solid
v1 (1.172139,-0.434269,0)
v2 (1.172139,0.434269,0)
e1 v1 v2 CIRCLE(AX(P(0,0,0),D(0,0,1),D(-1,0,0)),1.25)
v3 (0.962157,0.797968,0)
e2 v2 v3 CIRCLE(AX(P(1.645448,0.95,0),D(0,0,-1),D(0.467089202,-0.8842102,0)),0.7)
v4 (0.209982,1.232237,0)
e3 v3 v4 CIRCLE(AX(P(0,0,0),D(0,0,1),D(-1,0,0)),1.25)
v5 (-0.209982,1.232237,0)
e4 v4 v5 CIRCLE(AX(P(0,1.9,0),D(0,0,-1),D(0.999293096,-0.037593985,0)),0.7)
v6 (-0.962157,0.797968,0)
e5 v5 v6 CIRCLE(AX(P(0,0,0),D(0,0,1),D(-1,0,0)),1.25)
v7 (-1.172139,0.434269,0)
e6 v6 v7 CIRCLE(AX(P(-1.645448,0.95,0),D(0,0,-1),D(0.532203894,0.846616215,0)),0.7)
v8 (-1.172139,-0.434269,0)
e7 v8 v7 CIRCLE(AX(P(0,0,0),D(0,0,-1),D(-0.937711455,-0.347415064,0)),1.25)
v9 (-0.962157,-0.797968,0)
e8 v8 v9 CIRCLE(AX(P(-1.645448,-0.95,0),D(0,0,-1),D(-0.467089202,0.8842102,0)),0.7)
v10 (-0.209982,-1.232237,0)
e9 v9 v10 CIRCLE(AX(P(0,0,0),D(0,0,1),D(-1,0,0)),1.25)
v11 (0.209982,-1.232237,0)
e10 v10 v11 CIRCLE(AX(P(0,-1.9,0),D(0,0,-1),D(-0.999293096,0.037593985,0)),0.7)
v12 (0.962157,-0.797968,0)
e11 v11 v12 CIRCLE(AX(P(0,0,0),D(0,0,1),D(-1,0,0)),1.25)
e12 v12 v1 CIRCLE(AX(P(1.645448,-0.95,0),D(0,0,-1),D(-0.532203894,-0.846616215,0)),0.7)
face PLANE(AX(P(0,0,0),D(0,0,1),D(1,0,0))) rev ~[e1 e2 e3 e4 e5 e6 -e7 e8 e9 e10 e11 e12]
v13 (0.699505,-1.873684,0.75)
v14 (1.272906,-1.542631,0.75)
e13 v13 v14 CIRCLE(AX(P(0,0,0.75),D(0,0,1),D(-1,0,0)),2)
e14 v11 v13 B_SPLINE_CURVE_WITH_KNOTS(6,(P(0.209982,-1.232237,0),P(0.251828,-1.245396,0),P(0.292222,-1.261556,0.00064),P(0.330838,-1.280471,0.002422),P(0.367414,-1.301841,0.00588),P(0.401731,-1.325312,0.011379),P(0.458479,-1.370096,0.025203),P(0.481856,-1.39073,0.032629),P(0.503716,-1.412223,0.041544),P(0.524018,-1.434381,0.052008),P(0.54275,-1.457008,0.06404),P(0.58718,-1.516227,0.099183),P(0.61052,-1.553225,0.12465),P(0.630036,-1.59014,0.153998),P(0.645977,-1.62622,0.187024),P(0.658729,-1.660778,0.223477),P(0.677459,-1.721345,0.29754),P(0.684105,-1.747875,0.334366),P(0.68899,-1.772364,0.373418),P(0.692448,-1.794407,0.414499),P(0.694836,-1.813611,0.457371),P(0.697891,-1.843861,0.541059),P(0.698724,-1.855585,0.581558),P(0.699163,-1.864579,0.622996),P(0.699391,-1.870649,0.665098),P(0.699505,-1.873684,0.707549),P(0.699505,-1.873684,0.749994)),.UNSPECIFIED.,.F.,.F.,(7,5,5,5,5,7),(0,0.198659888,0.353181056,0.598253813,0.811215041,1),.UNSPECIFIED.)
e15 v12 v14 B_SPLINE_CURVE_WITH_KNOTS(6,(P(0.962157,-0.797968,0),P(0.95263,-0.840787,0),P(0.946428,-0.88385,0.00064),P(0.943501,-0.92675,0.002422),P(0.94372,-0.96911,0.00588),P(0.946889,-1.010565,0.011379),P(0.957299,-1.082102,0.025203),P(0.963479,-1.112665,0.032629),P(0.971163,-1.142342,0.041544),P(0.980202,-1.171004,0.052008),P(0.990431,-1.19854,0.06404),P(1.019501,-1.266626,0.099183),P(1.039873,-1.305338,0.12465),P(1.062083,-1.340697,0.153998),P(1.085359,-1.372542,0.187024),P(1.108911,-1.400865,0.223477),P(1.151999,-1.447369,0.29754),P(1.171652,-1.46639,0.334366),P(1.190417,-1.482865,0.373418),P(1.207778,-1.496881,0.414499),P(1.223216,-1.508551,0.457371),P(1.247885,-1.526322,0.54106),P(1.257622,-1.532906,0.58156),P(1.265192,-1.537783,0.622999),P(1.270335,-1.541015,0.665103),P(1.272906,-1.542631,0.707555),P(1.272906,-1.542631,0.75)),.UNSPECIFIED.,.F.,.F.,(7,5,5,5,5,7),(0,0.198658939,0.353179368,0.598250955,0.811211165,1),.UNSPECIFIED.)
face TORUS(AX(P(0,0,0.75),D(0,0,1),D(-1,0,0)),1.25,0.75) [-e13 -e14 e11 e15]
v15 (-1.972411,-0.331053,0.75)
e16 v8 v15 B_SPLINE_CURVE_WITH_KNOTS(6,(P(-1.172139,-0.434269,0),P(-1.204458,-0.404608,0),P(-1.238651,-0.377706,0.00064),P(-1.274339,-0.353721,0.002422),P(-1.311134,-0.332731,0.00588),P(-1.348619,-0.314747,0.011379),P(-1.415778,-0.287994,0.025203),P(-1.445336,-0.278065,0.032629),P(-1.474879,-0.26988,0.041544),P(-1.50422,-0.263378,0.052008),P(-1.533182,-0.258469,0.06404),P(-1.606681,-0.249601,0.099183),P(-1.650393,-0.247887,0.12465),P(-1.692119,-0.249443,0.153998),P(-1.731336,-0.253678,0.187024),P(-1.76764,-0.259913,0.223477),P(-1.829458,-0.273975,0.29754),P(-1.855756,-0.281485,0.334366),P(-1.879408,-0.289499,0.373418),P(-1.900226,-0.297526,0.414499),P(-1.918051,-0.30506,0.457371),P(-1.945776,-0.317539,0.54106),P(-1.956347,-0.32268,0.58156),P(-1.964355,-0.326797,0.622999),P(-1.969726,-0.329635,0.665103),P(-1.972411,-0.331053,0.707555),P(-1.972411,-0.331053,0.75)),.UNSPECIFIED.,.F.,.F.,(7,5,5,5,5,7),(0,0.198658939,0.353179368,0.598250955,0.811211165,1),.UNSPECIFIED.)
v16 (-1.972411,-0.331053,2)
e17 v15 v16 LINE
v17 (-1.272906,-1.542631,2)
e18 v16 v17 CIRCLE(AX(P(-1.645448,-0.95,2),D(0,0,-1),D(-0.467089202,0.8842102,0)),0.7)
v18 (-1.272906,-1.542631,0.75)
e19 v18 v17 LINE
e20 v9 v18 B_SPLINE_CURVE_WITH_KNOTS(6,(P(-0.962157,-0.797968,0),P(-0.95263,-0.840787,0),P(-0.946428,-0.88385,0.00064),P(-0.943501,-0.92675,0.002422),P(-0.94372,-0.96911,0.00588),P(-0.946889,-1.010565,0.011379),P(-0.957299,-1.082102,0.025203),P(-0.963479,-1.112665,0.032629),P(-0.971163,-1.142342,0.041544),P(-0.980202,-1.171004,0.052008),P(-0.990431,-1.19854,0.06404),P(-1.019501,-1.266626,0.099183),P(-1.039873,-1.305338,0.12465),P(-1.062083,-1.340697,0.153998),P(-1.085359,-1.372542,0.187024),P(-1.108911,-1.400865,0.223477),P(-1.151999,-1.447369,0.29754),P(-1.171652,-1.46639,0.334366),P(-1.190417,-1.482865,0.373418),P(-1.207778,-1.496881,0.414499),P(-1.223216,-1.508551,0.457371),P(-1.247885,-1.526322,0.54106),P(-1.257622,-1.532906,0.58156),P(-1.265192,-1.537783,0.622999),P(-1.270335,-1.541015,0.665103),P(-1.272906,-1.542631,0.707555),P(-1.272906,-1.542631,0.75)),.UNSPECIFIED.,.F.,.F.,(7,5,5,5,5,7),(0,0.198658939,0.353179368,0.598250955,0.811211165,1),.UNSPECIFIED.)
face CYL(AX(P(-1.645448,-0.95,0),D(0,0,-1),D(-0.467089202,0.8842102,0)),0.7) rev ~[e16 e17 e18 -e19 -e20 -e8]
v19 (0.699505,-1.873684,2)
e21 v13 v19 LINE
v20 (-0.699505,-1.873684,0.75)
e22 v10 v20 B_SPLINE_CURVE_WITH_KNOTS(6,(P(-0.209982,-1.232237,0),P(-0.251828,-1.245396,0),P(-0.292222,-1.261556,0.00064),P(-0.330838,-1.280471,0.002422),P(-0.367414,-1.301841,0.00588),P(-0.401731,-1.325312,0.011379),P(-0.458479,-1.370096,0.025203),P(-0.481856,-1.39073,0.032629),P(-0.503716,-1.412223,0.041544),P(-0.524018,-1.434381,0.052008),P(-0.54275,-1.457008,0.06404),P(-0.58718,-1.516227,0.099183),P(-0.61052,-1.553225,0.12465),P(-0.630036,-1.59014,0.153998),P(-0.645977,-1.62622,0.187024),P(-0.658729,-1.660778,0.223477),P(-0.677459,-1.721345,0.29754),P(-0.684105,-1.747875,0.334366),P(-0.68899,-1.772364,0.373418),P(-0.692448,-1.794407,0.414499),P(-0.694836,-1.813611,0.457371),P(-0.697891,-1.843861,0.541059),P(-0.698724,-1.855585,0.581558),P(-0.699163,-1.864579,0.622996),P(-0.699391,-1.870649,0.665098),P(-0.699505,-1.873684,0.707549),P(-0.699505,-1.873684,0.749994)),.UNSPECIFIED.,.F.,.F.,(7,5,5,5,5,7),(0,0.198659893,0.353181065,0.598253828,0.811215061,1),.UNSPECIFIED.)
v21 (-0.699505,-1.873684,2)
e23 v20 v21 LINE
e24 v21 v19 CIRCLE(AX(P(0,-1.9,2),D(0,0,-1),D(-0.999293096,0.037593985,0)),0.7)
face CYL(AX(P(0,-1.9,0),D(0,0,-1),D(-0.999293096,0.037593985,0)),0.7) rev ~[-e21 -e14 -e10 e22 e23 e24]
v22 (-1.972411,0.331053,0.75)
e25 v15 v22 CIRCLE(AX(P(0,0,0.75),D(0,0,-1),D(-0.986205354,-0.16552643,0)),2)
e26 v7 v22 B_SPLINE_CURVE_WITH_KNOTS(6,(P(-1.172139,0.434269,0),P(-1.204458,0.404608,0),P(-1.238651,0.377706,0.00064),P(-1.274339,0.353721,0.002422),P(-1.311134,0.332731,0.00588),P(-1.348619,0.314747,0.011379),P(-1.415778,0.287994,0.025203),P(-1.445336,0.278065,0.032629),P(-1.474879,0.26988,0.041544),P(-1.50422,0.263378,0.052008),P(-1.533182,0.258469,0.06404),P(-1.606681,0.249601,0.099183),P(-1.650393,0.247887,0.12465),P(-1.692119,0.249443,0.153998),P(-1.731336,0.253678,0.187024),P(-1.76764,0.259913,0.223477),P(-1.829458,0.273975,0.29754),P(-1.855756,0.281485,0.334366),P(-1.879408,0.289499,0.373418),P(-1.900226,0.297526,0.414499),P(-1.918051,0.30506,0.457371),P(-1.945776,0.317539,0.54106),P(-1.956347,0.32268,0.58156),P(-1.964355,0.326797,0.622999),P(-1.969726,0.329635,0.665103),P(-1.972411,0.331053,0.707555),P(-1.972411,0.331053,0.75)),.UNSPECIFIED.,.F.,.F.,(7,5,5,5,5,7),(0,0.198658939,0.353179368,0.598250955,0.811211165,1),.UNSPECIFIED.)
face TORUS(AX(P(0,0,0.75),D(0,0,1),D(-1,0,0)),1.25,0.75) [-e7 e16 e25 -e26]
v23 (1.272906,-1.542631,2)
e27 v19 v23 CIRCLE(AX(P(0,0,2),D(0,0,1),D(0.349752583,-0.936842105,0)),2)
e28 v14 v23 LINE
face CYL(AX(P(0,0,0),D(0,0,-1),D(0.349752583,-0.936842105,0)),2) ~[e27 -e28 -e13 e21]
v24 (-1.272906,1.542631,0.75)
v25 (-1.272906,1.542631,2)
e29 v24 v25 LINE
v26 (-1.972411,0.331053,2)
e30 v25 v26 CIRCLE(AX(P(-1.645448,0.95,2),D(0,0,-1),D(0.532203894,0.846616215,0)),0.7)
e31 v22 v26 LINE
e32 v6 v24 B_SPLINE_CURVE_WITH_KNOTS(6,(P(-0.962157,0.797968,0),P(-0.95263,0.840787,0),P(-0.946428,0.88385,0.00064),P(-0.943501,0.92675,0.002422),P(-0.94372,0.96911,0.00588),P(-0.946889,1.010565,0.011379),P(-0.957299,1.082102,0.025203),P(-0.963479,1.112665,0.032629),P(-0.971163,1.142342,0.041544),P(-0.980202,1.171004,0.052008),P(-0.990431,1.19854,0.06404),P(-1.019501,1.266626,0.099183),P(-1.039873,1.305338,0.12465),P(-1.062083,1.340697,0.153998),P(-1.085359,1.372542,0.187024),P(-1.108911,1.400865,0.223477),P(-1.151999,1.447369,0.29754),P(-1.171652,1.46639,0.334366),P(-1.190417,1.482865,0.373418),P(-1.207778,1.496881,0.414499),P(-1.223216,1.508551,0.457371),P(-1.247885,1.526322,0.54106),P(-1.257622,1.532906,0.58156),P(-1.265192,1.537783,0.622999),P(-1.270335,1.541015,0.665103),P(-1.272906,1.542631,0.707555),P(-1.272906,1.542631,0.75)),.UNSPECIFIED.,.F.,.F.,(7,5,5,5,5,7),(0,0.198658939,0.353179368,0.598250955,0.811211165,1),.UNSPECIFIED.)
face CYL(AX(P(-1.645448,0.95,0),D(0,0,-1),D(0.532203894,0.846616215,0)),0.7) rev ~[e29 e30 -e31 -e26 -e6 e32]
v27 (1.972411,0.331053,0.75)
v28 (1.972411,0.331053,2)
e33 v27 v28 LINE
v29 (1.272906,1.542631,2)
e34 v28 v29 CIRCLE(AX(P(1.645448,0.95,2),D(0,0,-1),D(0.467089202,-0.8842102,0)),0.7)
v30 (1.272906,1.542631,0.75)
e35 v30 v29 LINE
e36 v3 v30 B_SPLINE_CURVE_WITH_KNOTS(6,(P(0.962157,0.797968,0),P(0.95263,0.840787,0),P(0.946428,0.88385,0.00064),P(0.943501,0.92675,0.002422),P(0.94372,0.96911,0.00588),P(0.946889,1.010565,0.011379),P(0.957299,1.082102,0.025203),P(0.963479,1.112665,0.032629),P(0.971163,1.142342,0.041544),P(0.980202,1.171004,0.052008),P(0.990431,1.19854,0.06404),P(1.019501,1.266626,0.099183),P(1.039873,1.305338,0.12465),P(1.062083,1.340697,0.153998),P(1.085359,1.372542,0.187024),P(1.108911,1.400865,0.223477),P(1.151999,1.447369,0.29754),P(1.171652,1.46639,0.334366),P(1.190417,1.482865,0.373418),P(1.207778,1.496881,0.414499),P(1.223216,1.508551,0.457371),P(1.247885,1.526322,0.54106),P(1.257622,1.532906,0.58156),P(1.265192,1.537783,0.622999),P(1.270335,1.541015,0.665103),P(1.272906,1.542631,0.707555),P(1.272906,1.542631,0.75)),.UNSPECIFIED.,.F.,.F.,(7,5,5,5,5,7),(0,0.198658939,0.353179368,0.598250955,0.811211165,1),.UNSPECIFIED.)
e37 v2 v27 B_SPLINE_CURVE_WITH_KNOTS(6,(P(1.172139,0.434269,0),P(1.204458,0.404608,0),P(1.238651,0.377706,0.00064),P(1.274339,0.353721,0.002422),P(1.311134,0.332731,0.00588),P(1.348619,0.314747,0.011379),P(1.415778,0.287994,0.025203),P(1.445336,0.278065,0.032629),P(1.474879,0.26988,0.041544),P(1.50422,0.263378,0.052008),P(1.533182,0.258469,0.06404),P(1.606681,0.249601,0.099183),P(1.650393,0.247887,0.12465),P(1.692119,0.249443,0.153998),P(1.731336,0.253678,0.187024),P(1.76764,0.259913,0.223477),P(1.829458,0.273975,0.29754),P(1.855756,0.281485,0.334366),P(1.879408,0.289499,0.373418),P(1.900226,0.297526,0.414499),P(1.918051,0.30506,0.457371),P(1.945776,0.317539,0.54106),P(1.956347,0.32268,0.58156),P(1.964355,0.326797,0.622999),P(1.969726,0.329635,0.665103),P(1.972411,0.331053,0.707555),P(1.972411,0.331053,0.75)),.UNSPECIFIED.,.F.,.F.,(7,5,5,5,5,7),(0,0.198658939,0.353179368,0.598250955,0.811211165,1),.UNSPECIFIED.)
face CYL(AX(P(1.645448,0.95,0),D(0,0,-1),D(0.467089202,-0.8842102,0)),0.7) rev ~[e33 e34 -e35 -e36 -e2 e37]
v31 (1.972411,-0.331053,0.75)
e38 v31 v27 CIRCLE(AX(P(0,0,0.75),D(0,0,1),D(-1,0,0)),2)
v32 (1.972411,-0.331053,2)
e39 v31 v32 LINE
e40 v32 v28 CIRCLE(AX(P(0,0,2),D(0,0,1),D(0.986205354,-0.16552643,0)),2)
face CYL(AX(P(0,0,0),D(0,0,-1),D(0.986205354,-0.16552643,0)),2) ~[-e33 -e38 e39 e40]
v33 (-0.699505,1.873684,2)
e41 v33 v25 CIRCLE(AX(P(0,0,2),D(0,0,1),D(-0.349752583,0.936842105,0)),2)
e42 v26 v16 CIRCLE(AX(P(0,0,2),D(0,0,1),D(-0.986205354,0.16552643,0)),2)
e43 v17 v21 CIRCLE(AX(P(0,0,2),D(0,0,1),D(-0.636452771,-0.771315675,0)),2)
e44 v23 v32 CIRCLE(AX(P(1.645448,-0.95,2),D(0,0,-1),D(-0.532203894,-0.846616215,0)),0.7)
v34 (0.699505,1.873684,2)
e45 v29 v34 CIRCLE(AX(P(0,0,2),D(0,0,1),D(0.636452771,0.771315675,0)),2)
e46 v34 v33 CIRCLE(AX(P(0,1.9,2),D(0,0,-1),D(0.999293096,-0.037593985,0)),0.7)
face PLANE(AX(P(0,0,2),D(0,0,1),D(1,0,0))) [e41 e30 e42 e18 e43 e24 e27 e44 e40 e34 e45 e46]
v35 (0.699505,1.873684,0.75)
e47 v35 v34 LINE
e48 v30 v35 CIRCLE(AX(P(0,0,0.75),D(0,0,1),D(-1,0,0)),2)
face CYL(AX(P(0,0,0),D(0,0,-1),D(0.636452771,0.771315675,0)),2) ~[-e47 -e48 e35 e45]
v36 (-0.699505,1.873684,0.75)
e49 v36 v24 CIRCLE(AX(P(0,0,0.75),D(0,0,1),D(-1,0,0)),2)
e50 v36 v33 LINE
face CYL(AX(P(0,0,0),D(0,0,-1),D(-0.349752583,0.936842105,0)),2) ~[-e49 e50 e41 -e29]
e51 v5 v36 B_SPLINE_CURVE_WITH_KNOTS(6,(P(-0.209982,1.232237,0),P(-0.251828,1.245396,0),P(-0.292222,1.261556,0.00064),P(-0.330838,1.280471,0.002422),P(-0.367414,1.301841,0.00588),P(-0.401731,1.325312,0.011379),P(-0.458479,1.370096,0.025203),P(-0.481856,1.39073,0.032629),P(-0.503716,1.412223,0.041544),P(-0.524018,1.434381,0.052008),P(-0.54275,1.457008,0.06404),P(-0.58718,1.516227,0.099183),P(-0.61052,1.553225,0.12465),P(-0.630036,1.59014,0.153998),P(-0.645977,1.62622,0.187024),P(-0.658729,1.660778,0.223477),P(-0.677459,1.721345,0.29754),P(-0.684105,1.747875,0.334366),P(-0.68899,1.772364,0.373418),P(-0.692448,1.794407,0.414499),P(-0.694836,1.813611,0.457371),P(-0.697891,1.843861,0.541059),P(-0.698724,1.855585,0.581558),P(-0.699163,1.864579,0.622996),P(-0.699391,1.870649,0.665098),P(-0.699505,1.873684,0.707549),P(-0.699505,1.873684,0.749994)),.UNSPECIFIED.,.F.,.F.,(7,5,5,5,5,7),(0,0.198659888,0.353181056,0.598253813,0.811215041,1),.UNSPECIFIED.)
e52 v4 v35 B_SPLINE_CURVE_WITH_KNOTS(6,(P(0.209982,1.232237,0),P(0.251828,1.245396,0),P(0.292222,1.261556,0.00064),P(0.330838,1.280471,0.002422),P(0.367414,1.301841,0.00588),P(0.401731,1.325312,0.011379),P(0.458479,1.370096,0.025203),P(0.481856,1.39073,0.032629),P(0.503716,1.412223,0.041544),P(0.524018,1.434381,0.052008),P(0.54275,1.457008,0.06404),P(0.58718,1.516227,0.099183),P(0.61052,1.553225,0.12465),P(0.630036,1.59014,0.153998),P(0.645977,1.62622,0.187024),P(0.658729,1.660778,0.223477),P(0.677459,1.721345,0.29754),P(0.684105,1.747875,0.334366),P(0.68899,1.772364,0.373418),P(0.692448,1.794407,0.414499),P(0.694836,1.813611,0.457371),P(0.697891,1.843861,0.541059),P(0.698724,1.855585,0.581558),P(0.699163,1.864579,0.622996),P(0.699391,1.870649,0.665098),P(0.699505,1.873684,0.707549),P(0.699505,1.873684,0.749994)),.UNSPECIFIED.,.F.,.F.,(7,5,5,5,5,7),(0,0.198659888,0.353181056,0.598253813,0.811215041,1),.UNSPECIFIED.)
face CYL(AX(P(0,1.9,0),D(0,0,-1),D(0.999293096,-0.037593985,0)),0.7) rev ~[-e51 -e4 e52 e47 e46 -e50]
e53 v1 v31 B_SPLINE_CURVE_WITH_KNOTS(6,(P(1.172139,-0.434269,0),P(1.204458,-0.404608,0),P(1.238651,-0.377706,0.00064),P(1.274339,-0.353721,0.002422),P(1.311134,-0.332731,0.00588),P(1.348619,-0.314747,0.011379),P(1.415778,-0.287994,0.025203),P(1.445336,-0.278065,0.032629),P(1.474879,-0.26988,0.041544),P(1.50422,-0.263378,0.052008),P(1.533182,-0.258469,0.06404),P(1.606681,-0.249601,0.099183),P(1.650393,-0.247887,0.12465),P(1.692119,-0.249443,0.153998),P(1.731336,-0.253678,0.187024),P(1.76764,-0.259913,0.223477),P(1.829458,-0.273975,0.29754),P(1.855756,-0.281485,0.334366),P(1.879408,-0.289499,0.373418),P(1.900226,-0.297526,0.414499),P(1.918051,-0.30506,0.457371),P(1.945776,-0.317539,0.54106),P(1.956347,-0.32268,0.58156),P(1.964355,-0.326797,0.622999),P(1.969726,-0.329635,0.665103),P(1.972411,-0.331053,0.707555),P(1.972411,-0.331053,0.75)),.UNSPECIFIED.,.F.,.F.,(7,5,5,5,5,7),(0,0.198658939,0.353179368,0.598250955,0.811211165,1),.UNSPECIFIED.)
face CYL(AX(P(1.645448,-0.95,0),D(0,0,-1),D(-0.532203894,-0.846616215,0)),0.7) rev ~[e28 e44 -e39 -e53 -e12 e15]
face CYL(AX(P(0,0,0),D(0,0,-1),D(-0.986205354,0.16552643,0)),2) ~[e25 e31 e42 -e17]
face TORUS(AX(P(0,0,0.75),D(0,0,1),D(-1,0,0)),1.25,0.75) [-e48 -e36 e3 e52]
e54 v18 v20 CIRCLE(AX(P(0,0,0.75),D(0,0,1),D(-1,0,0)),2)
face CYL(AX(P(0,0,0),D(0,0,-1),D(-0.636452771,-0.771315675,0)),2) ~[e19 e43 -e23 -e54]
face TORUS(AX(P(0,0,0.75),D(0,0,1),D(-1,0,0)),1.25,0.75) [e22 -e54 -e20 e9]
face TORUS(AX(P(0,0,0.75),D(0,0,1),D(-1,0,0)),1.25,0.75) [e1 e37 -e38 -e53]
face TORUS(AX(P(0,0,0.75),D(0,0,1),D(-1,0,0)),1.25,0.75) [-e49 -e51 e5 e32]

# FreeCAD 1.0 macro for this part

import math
import FreeCAD as App
import Part
import Sketcher
from FreeCAD import Vector
Q = App.Units.Quantity

doc = App.newDocument("Part")
params = doc.addObject("Spreadsheet::Sheet", "Params")
for row, (alias, value) in enumerate([
    ("sketch1_radius", "2 mm"),
    ("sketch1_radius2", "0.7 mm"),
    ("pad1_length", "2 mm"),
    ("sketch2_radius", "0.75 mm"),
    ("groove_angle", "360 deg"),
], start=1):
    params.set(f"A{row}", alias)
    params.set(f"B{row}", "=" + value)
    params.setAlias(f"B{row}", alias)

body = doc.addObject("PartDesign::Body", "Body")

sketch1 = body.newObject("Sketcher::SketchObject", "Sketch")
sketch1.AttachmentSupport = (doc.getObject("XY_Plane"), [""])
sketch1.MapMode = "FlatFace"
sketch1.addGeometry([
    Part.ArcOfCircle(Part.Circle(Vector(0, 1.9, 0), Vector(0, 0, 1), 0.7), math.radians(-178), math.radians(-2)),
    Part.ArcOfCircle(Part.Circle(Vector(0, 0, 0), Vector(0, 0, 1), 2), math.radians(110.47), math.radians(129.53)),
    Part.ArcOfCircle(Part.Circle(Vector(-1.6, 0.9, 0), Vector(0, 0, 1), 0.7), math.radians(-118), math.radians(58)),
    Part.ArcOfCircle(Part.Circle(Vector(0, 0, 0), Vector(0, 0, 1), 2), math.radians(170.47), math.radians(189.53)),
    Part.ArcOfCircle(Part.Circle(Vector(-1.6, -0.9, 0), Vector(0, 0, 1), 0.7), math.radians(-58), math.radians(118)),
    Part.ArcOfCircle(Part.Circle(Vector(0, 0, 0), Vector(0, 0, 1), 2), math.radians(-129.53), math.radians(-110.47)),
    Part.ArcOfCircle(Part.Circle(Vector(0, -1.9, 0), Vector(0, 0, 1), 0.7), math.radians(2), math.radians(178)),
    Part.ArcOfCircle(Part.Circle(Vector(0, 0, 0), Vector(0, 0, 1), 2), math.radians(-69.53), math.radians(-50.47)),
    Part.ArcOfCircle(Part.Circle(Vector(1.6, -0.9, 0), Vector(0, 0, 1), 0.7), math.radians(62), math.radians(238)),
    Part.ArcOfCircle(Part.Circle(Vector(0, 0, 0), Vector(0, 0, 1), 2), math.radians(-9.53), math.radians(9.53)),
    Part.ArcOfCircle(Part.Circle(Vector(1.6, 0.9, 0), Vector(0, 0, 1), 0.7), math.radians(122), math.radians(298)),
    Part.ArcOfCircle(Part.Circle(Vector(0, 0, 0), Vector(0, 0, 1), 2), math.radians(50.47), math.radians(69.53)),
], False)
sketch1.addConstraint([
    Sketcher.Constraint("Coincident", 0, 1, 1, 1),
    Sketcher.Constraint("Coincident", 1, 2, 2, 2),
    Sketcher.Constraint("Coincident", 2, 1, 3, 1),
    Sketcher.Constraint("Coincident", 3, 2, 4, 2),
    Sketcher.Constraint("Coincident", 4, 1, 5, 1),
    Sketcher.Constraint("Coincident", 5, 2, 6, 2),
    Sketcher.Constraint("Coincident", 6, 1, 7, 1),
    Sketcher.Constraint("Coincident", 7, 2, 8, 2),
    Sketcher.Constraint("Coincident", 8, 1, 9, 1),
    Sketcher.Constraint("Coincident", 9, 2, 10, 2),
    Sketcher.Constraint("Coincident", 10, 1, 11, 1),
    Sketcher.Constraint("Coincident", 11, 2, 0, 2),
    Sketcher.Constraint("Coincident", 1, 3, -1, 1),
    Sketcher.Constraint("Coincident", 3, 3, -1, 1),
    Sketcher.Constraint("Coincident", 5, 3, -1, 1),
    Sketcher.Constraint("Coincident", 7, 3, -1, 1),
    Sketcher.Constraint("Coincident", 9, 3, -1, 1),
    Sketcher.Constraint("Coincident", 11, 3, -1, 1),
    Sketcher.Constraint("Equal", 0, 2),
    Sketcher.Constraint("Equal", 1, 3),
    Sketcher.Constraint("Equal", 2, 4),
    Sketcher.Constraint("Equal", 3, 5),
    Sketcher.Constraint("Equal", 4, 6),
    Sketcher.Constraint("Equal", 5, 7),
    Sketcher.Constraint("Equal", 6, 8),
    Sketcher.Constraint("Equal", 7, 9),
    Sketcher.Constraint("Equal", 8, 10),
    Sketcher.Constraint("Equal", 9, 11),
    Sketcher.Constraint("Symmetric", 0, 3, 6, 3, -1, 1),
    Sketcher.Constraint("Symmetric", 2, 3, 8, 3, -1, 1),
    Sketcher.Constraint("Symmetric", 4, 3, 10, 3, -1, 1),
    Sketcher.Constraint("Symmetric", 4, 3, 8, 3, -2),
    Sketcher.Constraint("PointOnObject", 0, 3, -2),
    Sketcher.Constraint("Radius", 1, Q("2 mm")),
    Sketcher.Constraint("Radius", 0, Q("0.7 mm")),
    Sketcher.Constraint("DistanceY", -1, 1, 0, 3, Q("1.9 mm")),
    Sketcher.Constraint("DistanceY", 4, 3, 2, 3, Q("1.9 mm")),
    Sketcher.Constraint("DistanceX", 1, 2, 0, 1, Q("0.5734 mm")),
])
sketch1.setExpression("Constraints[33]", "Params.sketch1_radius")
sketch1.setExpression("Constraints[34]", "Params.sketch1_radius2")
pad1 = body.newObject("PartDesign::Pad", "Pad")
pad1.Profile = sketch1
pad1.setExpression("Length", "Params.pad1_length")

sketch2 = body.newObject("Sketcher::SketchObject", "Sketch001")
sketch2.AttachmentSupport = (doc.getObject("XZ_Plane"), [""])
sketch2.MapMode = "FlatFace"
sketch2.addGeometry([
    Part.LineSegment(Vector(-2, 0.8, 0), Vector(-2, 0, 0)),
    Part.LineSegment(Vector(-2, 0, 0), Vector(-1.2, 0, 0)),
    Part.ArcOfCircle(Part.Circle(Vector(-1.2, 0.8, 0), Vector(0, 0, 1), 0.8), math.radians(180), math.radians(270)),
], False)
sketch2.addConstraint([
    Sketcher.Constraint("Coincident", 0, 2, 1, 1),
    Sketcher.Constraint("Tangent", 1, 2, 2, 2),
    Sketcher.Constraint("Tangent", 2, 1, 0, 1),
    Sketcher.Constraint("Vertical", 0),
    Sketcher.Constraint("Horizontal", 1),
    Sketcher.Constraint("PointOnObject", 0, 2, -1),
    Sketcher.Constraint("Radius", 2, Q("0.75 mm")),
    Sketcher.Constraint("DistanceX", 0, 2, -1, 1, Q("2 mm")),
])
sketch2.setExpression("Constraints[6]", "Params.sketch2_radius")
groove = body.newObject("PartDesign::Groove", "Groove")
groove.Profile = sketch2
groove.ReferenceAxis = (sketch2, ["V_Axis"])
groove.setExpression("Angle", "Params.groove_angle")

doc.recompute()
